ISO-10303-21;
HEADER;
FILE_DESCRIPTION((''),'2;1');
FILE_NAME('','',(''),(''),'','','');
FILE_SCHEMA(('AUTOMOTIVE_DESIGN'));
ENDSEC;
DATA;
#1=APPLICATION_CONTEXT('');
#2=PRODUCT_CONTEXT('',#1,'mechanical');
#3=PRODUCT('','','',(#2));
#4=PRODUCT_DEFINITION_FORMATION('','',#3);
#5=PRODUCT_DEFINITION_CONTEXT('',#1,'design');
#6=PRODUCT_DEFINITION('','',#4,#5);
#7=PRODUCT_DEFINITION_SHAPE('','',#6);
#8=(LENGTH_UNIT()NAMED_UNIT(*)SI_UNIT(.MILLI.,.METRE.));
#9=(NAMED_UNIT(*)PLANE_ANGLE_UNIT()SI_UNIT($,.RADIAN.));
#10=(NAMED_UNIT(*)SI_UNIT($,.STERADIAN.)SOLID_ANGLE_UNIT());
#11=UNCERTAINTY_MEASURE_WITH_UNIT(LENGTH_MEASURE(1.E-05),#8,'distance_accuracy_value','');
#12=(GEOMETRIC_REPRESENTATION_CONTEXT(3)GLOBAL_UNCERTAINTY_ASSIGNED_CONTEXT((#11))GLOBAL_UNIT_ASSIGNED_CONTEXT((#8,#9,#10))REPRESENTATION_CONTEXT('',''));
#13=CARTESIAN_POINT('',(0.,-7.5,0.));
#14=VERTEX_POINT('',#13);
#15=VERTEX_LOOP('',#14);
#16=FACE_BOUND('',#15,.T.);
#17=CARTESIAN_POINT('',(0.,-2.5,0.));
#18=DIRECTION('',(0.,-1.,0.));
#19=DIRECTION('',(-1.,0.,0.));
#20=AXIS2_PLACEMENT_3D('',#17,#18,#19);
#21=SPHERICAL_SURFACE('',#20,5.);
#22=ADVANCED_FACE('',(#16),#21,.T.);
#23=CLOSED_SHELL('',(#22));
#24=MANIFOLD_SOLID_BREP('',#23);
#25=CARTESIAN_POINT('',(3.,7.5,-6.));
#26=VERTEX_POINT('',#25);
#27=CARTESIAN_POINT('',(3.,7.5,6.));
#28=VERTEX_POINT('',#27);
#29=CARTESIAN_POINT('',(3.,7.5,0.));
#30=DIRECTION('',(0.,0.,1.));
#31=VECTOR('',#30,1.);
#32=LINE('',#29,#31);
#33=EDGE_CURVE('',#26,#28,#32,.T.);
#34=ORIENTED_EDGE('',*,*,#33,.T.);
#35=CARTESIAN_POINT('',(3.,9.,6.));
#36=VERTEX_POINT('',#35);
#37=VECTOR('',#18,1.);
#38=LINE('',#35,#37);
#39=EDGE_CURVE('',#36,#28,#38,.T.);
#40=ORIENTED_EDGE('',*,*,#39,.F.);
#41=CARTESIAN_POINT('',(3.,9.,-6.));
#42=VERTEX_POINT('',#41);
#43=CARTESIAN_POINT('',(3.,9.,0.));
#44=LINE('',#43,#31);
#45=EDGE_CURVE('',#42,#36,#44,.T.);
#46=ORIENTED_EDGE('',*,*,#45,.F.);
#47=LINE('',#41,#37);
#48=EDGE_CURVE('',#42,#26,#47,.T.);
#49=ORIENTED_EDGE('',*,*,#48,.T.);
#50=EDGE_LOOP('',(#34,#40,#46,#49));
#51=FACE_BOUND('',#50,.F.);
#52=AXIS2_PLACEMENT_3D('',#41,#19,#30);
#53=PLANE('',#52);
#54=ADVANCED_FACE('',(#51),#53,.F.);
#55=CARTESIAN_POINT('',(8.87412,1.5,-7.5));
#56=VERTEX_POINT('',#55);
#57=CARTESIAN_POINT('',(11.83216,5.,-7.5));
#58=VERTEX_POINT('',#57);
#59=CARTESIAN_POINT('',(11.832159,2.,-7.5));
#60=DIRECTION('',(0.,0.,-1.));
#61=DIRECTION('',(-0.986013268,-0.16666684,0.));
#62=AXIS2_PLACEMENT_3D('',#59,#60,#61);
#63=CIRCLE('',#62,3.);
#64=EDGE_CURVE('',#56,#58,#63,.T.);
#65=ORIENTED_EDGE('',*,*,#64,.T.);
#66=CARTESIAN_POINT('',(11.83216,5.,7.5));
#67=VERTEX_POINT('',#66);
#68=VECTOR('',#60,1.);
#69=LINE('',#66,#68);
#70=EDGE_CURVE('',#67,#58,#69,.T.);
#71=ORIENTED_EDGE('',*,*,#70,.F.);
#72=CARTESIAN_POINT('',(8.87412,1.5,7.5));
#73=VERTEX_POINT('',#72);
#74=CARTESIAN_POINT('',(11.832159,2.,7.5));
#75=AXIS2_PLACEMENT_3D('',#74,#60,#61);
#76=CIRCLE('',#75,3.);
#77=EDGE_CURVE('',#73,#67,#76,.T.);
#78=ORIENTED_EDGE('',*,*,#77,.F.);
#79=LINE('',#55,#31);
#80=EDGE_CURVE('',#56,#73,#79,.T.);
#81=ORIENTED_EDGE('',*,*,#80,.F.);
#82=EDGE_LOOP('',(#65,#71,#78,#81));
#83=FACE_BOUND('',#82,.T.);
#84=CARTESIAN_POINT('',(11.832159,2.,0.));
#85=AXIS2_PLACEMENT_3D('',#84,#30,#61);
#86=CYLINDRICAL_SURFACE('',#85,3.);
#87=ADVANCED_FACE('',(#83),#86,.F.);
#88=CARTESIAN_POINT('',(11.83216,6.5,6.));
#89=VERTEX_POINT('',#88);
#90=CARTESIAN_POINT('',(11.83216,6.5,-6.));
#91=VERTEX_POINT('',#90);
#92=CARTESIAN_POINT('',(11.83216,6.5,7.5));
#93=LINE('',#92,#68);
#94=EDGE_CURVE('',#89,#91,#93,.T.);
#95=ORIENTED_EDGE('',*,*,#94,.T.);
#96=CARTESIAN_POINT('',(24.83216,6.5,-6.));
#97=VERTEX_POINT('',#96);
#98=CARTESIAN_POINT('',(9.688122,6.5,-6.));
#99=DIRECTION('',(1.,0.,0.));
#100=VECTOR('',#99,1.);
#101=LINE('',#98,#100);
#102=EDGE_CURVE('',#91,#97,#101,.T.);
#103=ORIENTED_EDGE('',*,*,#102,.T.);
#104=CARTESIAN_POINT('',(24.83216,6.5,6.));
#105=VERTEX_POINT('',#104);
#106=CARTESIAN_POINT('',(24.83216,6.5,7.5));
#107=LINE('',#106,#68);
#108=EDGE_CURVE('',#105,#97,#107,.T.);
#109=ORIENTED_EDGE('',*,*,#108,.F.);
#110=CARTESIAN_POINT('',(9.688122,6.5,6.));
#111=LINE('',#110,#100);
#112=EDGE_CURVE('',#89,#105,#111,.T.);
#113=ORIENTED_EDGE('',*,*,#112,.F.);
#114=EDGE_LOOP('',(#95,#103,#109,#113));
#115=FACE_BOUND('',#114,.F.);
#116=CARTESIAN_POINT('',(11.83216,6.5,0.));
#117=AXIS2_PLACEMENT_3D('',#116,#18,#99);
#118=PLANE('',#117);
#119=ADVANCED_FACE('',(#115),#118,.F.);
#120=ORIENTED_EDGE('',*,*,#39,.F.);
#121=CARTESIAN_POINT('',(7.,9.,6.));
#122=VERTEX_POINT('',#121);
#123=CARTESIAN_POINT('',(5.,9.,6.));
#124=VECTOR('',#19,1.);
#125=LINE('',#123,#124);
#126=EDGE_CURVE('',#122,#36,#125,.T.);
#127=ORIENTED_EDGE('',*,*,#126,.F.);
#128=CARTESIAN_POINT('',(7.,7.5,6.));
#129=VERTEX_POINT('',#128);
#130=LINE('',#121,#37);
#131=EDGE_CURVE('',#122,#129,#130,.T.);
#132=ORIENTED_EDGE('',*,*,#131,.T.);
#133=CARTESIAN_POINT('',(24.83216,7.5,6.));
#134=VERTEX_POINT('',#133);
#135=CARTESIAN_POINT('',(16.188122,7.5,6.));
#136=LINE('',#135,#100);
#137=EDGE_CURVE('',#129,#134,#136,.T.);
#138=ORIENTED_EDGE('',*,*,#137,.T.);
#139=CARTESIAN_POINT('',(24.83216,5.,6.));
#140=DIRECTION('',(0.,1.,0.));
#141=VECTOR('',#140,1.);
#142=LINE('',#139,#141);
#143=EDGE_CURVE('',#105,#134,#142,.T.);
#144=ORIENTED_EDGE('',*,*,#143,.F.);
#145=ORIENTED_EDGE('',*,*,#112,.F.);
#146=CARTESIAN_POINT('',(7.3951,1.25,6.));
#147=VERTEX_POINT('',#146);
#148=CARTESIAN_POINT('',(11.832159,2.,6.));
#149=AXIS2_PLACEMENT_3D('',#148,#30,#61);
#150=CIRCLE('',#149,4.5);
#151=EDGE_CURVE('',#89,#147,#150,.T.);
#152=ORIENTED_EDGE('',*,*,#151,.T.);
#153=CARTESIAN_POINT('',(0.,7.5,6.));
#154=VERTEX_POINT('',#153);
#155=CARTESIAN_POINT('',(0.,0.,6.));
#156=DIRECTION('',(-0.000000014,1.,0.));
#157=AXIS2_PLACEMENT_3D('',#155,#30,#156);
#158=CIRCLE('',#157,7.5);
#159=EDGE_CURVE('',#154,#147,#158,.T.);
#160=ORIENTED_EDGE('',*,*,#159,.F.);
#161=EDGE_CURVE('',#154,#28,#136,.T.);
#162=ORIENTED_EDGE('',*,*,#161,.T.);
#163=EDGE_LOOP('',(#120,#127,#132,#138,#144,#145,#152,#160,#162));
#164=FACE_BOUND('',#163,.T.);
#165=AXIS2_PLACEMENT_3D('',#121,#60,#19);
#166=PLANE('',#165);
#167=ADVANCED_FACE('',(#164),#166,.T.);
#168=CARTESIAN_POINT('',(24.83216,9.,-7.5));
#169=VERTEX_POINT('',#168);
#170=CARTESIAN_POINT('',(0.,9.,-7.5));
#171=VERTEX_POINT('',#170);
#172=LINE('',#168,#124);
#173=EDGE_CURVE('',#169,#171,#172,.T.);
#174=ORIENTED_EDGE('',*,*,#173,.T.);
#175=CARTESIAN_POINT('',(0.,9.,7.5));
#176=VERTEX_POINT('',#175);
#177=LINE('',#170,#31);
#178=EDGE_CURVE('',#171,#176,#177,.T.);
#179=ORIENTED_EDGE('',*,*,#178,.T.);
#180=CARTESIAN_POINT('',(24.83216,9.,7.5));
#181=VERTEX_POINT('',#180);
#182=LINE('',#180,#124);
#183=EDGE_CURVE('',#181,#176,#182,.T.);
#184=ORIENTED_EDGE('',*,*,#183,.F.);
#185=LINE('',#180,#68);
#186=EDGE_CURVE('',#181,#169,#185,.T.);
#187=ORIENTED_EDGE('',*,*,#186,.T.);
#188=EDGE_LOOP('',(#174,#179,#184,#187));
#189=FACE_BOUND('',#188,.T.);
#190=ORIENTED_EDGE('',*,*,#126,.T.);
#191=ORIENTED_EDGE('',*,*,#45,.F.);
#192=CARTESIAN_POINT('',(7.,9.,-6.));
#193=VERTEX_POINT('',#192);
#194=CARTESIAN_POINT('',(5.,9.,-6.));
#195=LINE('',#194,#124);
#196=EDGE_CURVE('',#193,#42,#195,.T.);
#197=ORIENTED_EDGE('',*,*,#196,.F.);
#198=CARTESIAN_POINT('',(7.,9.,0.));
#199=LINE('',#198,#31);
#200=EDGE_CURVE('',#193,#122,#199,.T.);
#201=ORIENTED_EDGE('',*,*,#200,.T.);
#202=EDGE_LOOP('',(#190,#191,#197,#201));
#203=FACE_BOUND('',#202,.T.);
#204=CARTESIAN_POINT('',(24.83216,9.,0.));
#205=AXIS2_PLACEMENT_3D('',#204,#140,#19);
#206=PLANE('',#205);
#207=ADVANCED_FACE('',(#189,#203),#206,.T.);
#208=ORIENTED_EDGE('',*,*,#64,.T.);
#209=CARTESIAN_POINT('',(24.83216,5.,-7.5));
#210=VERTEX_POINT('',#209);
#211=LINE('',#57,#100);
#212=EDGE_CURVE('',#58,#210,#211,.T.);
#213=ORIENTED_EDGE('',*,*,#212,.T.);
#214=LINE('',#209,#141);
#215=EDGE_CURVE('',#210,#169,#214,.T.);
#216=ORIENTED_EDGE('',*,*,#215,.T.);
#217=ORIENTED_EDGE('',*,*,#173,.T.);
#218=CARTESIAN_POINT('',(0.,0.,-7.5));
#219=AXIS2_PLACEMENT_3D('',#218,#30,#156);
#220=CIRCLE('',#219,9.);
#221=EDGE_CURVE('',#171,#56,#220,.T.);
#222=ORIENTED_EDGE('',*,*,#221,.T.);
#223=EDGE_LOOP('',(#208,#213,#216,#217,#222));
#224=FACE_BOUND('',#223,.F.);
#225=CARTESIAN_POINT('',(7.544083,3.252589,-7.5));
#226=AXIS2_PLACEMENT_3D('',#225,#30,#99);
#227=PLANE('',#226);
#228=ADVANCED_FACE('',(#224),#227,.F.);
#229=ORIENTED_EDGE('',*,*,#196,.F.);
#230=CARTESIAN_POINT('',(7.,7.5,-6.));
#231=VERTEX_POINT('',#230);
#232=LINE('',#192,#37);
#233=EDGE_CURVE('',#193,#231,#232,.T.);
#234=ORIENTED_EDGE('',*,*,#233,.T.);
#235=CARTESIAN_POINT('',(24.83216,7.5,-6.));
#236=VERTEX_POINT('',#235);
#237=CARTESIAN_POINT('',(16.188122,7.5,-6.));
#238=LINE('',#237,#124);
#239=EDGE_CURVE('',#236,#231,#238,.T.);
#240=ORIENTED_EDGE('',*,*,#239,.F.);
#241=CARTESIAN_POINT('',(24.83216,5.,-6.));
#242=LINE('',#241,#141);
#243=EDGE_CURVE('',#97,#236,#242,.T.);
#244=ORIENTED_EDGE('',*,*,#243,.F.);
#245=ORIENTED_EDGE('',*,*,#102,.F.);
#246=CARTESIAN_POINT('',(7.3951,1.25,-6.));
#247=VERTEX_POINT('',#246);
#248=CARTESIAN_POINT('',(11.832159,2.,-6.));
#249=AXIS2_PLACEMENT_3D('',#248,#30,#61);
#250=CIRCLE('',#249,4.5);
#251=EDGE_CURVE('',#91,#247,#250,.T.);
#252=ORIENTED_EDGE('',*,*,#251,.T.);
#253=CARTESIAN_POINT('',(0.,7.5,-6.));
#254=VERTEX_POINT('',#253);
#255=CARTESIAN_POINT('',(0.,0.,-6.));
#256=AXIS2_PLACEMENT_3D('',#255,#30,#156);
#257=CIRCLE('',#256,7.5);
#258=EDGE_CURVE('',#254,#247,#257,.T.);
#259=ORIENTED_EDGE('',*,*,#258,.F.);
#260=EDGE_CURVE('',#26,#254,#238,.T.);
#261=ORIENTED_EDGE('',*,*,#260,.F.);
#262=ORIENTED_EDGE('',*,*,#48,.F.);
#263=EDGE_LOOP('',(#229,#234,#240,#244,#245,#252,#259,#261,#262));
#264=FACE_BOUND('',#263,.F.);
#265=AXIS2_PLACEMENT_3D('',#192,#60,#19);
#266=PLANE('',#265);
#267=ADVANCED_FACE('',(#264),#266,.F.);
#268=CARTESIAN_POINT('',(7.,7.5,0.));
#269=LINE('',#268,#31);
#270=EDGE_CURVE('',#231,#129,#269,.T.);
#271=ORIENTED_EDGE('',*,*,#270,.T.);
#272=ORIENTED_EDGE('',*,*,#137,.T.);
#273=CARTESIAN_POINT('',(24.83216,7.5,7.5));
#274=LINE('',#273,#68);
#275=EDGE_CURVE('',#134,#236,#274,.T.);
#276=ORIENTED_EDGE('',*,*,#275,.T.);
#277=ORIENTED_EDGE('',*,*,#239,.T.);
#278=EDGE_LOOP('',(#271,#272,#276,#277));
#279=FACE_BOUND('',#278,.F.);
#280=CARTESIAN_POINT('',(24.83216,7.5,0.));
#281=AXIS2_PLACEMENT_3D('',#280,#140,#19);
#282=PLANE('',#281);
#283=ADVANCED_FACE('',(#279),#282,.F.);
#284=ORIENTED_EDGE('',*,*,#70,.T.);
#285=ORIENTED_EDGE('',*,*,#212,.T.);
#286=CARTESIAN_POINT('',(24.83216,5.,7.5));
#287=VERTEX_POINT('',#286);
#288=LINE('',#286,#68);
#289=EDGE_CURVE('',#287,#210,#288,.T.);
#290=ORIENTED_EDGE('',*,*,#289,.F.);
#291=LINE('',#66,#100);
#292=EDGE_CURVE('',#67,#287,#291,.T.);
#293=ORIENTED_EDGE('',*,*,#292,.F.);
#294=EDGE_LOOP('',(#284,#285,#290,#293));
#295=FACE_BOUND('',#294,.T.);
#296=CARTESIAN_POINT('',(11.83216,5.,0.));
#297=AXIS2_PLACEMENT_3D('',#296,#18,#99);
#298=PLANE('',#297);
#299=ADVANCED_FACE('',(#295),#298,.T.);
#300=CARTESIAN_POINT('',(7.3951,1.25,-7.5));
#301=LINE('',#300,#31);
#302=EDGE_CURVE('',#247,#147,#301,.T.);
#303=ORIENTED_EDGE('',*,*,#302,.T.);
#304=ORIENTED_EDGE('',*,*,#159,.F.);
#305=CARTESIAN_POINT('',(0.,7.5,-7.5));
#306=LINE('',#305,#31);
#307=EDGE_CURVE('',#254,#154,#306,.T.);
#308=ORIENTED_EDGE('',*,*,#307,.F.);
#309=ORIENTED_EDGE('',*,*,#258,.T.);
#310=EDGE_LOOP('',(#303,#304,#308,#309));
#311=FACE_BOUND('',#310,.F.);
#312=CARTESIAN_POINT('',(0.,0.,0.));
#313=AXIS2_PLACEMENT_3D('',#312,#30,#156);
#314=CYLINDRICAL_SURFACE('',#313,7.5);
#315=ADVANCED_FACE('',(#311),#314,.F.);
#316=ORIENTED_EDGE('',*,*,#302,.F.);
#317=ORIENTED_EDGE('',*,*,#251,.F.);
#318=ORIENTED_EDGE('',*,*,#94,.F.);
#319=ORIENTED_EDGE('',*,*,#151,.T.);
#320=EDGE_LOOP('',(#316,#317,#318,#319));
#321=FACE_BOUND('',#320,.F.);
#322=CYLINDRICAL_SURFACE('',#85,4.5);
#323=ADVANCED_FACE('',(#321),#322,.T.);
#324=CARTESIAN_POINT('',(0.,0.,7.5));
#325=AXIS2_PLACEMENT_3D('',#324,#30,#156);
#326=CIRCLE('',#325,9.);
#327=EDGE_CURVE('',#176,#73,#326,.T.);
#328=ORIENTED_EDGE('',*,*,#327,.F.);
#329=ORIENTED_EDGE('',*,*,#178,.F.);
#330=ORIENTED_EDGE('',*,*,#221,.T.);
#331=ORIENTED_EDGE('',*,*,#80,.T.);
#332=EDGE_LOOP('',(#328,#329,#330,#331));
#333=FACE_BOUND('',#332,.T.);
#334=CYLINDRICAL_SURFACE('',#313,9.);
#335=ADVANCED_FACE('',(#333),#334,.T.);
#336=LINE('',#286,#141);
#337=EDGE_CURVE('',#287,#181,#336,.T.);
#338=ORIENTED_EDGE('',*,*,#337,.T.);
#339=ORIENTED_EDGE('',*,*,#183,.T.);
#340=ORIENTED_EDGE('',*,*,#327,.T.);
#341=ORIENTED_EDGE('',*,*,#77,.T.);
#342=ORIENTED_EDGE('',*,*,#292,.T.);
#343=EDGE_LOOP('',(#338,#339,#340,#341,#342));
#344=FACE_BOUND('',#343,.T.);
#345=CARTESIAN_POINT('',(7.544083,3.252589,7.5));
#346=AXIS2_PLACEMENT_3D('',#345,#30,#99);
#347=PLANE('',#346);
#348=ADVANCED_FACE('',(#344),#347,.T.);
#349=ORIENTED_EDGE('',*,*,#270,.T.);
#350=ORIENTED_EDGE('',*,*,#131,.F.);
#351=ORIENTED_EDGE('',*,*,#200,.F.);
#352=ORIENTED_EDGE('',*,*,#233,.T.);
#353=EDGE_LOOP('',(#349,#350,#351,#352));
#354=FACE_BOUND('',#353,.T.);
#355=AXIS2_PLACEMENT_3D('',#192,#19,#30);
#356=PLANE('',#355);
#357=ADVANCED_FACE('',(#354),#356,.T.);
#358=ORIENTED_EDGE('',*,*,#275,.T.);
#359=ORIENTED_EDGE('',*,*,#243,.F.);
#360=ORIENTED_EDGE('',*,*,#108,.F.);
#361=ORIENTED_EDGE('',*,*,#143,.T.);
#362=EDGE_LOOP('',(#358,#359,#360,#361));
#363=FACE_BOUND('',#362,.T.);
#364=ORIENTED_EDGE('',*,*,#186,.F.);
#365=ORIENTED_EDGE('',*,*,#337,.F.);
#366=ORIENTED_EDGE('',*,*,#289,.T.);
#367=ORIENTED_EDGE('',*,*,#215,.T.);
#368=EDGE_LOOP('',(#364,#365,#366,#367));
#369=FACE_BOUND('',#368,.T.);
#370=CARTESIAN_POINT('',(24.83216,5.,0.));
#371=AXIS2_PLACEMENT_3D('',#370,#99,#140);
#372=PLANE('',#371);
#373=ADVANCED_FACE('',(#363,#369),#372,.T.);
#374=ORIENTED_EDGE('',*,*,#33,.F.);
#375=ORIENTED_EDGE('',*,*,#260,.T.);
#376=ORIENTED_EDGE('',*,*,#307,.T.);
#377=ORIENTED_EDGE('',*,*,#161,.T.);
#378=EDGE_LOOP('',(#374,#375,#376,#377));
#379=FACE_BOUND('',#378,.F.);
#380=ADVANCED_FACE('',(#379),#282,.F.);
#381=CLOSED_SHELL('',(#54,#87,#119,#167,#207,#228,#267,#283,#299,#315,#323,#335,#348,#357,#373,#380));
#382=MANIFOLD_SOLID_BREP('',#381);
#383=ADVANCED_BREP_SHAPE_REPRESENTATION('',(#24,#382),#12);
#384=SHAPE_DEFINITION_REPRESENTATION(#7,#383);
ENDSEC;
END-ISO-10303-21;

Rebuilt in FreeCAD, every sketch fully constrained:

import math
import FreeCAD as App
import Part
import Sketcher
from FreeCAD import Vector
Q = App.Units.Quantity


def faces_at(feature, points):
    """Names of the faces that lie closest to the given points."""
    faces = feature.Shape.Faces
    near = lambda p: min(range(len(faces)), key=lambda i: faces[i].distToShape(Part.Vertex(*p))[0])
    return sorted({f"Face{near(p) + 1}" for p in points})


def add_polygon(sketch, points):
    """Adds a closed chain of lines whose ends are joined by coincident constraints."""
    first, n = sketch.GeometryCount, len(points)
    for a, b in zip(points, points[1:] + points[:1]):
        sketch.addGeometry(Part.LineSegment(App.Vector(*a, 0), App.Vector(*b, 0)), False)
    for i in range(n):
        sketch.addConstraint(Sketcher.Constraint("Coincident", first + i, 2, first + (i + 1) % n, 1))

doc = App.newDocument("Part")
params = doc.addObject("Spreadsheet::Sheet", "Params")
for row, (alias, value) in enumerate([
    ("sketch1_radius", "9 mm"),
    ("sketch1_radius2", "3 mm"),
    ("sketch1_width", "13 mm"),
    ("sketch1_height", "4 mm"),
    ("pad1_length", "15 mm"),
    ("thickness_wall", "1.5 mm"),
    ("sketch2_width", "4 mm"),
    ("sketch2_height", "12 mm"),
    ("pocket1_length", "1.5 mm"),
    ("sketch3_radius", "5 mm"),
    ("revolution_angle", "360 deg"),
], start=1):
    params.set(f"A{row}", alias)
    params.set(f"B{row}", "=" + value)
    params.setAlias(f"B{row}", alias)

body = doc.addObject("PartDesign::Body", "Body")

sketch1 = body.newObject("Sketcher::SketchObject", "Sketch")
sketch1.AttachmentSupport = (doc.getObject("XY_Plane"), [""])
sketch1.MapMode = "FlatFace"
sketch1.addGeometry(Part.LineSegment(Vector(24.83216, 9, 0), Vector(0, 9, 0)), False)
sketch1.addGeometry(Part.ArcOfCircle(Part.Circle(Vector(0, 0, 0), Vector(0, 0, 1), 9), math.radians(90.000001), math.radians(369.59407)), False)
sketch1.addGeometry(Part.ArcOfCircle(Part.Circle(Vector(11.832159, 2, 0), Vector(0, 0, 1), 3), math.radians(89.999988), math.radians(189.594078)), False)
sketch1.addGeometry(Part.LineSegment(Vector(11.83216, 5, 0), Vector(24.83216, 5, 0)), False)
sketch1.addGeometry(Part.LineSegment(Vector(24.83216, 5, 0), Vector(24.83216, 9, 0)), False)
sketch1.addConstraint(Sketcher.Constraint("Tangent", 0, 2, 1, 1))
sketch1.addConstraint(Sketcher.Constraint("Tangent", 1, 2, 2, 2))
sketch1.addConstraint(Sketcher.Constraint("Tangent", 2, 1, 3, 1))
sketch1.addConstraint(Sketcher.Constraint("Coincident", 3, 2, 4, 1))
sketch1.addConstraint(Sketcher.Constraint("Coincident", 4, 2, 0, 1))
sketch1.addConstraint(Sketcher.Constraint("Horizontal", 0))
sketch1.addConstraint(Sketcher.Constraint("Horizontal", 3))
sketch1.addConstraint(Sketcher.Constraint("Vertical", 4))
sketch1.addConstraint(Sketcher.Constraint("Coincident", 1, 3, -1, 1))
sketch1.addConstraint(Sketcher.Constraint("Radius", 1, Q("9 mm")))
sketch1.addConstraint(Sketcher.Constraint("Radius", 2, Q("3 mm")))
sketch1.addConstraint(Sketcher.Constraint("DistanceX", 3, 1, 3, 2, Q("13 mm")))
sketch1.addConstraint(Sketcher.Constraint("DistanceY", 4, 1, 4, 2, Q("4 mm")))
sketch1.setExpression("Constraints[9]", "Params.sketch1_radius")
sketch1.setExpression("Constraints[10]", "Params.sketch1_radius2")
sketch1.setExpression("Constraints[11]", "Params.sketch1_width")
sketch1.setExpression("Constraints[12]", "Params.sketch1_height")
pad1 = body.newObject("PartDesign::Pad", "Pad")
pad1.Profile = sketch1
pad1.setExpression("Length", "Params.pad1_length")
pad1.Midplane = True
doc.recompute()

thickness = body.newObject("PartDesign::Thickness", "Thickness")
thickness.Base = (pad1, faces_at(pad1, [(24.832, 7, 0)]))
thickness.setExpression("Value", "Params.thickness_wall")
thickness.Reversed = True
thickness.Join = "Arc"

sketch2 = body.newObject("Sketcher::SketchObject", "Sketch001")
sketch2.AttachmentSupport = (doc.getObject("XZ_Plane"), [""])
sketch2.MapMode = "FlatFace"
sketch2.AttachmentOffset = App.Placement(Vector(0, 0, -9), App.Rotation())
add_polygon(sketch2, [(7, 6), (7, -6), (3, -6), (3, 6)])
sketch2.addConstraint(Sketcher.Constraint("Vertical", 0))
sketch2.addConstraint(Sketcher.Constraint("Horizontal", 1))
sketch2.addConstraint(Sketcher.Constraint("Vertical", 2))
sketch2.addConstraint(Sketcher.Constraint("Horizontal", 3))
sketch2.addConstraint(Sketcher.Constraint("DistanceX", 1, 2, 1, 1, Q("4 mm")))
sketch2.addConstraint(Sketcher.Constraint("DistanceY", 0, 2, 0, 1, Q("12 mm")))
sketch2.addConstraint(Sketcher.Constraint("DistanceX", -1, 1, 0, 2, Q("7 mm")))
sketch2.addConstraint(Sketcher.Constraint("DistanceY", 0, 2, -1, 1, Q("6 mm")))
sketch2.setExpression("Constraints[8]", "Params.sketch2_width")
sketch2.setExpression("Constraints[9]", "Params.sketch2_height")
pocket1 = body.newObject("PartDesign::Pocket", "Pocket")
pocket1.Profile = sketch2
pocket1.setExpression("Length", "Params.pocket1_length")
pocket1.Reversed = True
body2 = doc.addObject("PartDesign::Body", "Body001")

sketch3 = body2.newObject("Sketcher::SketchObject", "Sketch002")
sketch3.AttachmentSupport = (doc.getObject("XY_Plane001"), [""])
sketch3.MapMode = "FlatFace"
sketch3.addGeometry(Part.ArcOfCircle(Part.Circle(Vector(0, -2.5, 0), Vector(0, 0, 1), 5), math.radians(90), math.radians(270)), False)
sketch3.addGeometry(Part.LineSegment(Vector(0, -7.5, 0), Vector(0, 2.5, 0)), False)
sketch3.addConstraint(Sketcher.Constraint("Coincident", 0, 1, 1, 2))
sketch3.addConstraint(Sketcher.Constraint("Coincident", 1, 1, 0, 2))
sketch3.addConstraint(Sketcher.Constraint("Vertical", 1))
sketch3.addConstraint(Sketcher.Constraint("PointOnObject", 0, 3, -2))
sketch3.addConstraint(Sketcher.Constraint("PointOnObject", 0, 1, -2))
sketch3.addConstraint(Sketcher.Constraint("Radius", 0, Q("5 mm")))
sketch3.addConstraint(Sketcher.Constraint("DistanceY", 0, 3, -1, 1, Q("2.5 mm")))
sketch3.setExpression("Constraints[5]", "Params.sketch3_radius")
revolution = body2.newObject("PartDesign::Revolution", "Revolution")
revolution.Profile = sketch3
revolution.ReferenceAxis = (sketch3, ["V_Axis"])
revolution.setExpression("Angle", "Params.revolution_angle")

doc.recompute()
